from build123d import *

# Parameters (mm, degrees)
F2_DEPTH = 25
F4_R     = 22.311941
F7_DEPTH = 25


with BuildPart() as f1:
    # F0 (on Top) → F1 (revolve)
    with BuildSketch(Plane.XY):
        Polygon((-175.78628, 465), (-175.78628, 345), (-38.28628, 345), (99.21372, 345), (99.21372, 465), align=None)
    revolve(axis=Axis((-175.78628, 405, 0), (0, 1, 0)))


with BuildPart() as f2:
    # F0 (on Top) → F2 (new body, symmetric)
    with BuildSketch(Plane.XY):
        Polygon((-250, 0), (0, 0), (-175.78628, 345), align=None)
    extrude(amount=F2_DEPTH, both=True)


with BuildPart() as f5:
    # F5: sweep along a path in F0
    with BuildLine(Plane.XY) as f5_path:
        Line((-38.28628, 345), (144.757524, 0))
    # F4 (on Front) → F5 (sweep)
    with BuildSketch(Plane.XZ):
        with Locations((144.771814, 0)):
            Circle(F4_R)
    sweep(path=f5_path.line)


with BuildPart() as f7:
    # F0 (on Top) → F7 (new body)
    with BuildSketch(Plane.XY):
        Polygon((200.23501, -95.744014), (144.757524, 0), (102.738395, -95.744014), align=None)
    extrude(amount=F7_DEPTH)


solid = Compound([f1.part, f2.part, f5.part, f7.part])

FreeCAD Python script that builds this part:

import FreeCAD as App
import Part
import Sketcher
Q = App.Units.Quantity

doc = App.newDocument("Part")
body = doc.addObject("PartDesign::Body", "Body")

sketch1 = body.newObject("Sketcher::SketchObject", "Sketch")
sketch1.AttachmentSupport = (doc.getObject("XY_Plane"), [""])
sketch1.MapMode = "FlatFace"
sketch1.addGeometry(Part.LineSegment(App.Vector(-175.78628, 465, 0), App.Vector(-175.78628, 345, 0)), False)
sketch1.addGeometry(Part.LineSegment(App.Vector(-175.78628, 345, 0), App.Vector(99.21372, 345, 0)), False)
sketch1.addGeometry(Part.LineSegment(App.Vector(99.21372, 345, 0), App.Vector(99.21372, 465, 0)), False)
sketch1.addGeometry(Part.LineSegment(App.Vector(99.21372, 465, 0), App.Vector(-175.78628, 465, 0)), False)
sketch1.addGeometry(Part.LineSegment(App.Vector(-175.78628, 345, 0), App.Vector(-175.78628, 465, 0)), True)
sketch1.addConstraint(Sketcher.Constraint("Coincident", 0, 2, 1, 1))
sketch1.addConstraint(Sketcher.Constraint("Coincident", 1, 2, 2, 1))
sketch1.addConstraint(Sketcher.Constraint("Coincident", 2, 2, 3, 1))
sketch1.addConstraint(Sketcher.Constraint("Coincident", 3, 2, 0, 1))
sketch1.addConstraint(Sketcher.Constraint("Vertical", 0))
sketch1.addConstraint(Sketcher.Constraint("Horizontal", 1))
sketch1.addConstraint(Sketcher.Constraint("Vertical", 2))
sketch1.addConstraint(Sketcher.Constraint("Horizontal", 3))
sketch1.addConstraint(Sketcher.Constraint("Vertical", 4))
sketch1.addConstraint(Sketcher.Constraint("Coincident", 4, 1, 0, 2))
sketch1.addConstraint(Sketcher.Constraint("Horizontal", 2, 2, 4, 2))
sketch1.addConstraint(Sketcher.Constraint("DistanceX", 1, 1, 1, 2, Q("275 mm")))
sketch1.addConstraint(Sketcher.Constraint("DistanceY", 0, 2, 0, 1, Q("120 mm")))
sketch1.addConstraint(Sketcher.Constraint("DistanceY", -1, 1, 0, 2, Q("345 mm")))
sketch1.addConstraint(Sketcher.Constraint("DistanceX", 0, 2, -1, 1, Q("175.78628 mm")))
revolution = body.newObject("PartDesign::Revolution", "Revolution")
revolution.Profile = sketch1
revolution.ReferenceAxis = (sketch1, ["Axis0"])
revolution.Angle = 360
body2 = doc.addObject("PartDesign::Body", "Body001")

sketch2 = body2.newObject("Sketcher::SketchObject", "Sketch001")
sketch2.AttachmentSupport = (doc.getObject("XY_Plane001"), [""])
sketch2.MapMode = "FlatFace"
sketch2.addGeometry(Part.LineSegment(App.Vector(-250, 0, 0), App.Vector(0, 0, 0)), False)
sketch2.addGeometry(Part.LineSegment(App.Vector(0, 0, 0), App.Vector(-175.78628, 345, 0)), False)
sketch2.addGeometry(Part.LineSegment(App.Vector(-175.78628, 345, 0), App.Vector(-250, 0, 0)), False)
sketch2.addConstraint(Sketcher.Constraint("Coincident", 0, 2, 1, 1))
sketch2.addConstraint(Sketcher.Constraint("Coincident", 1, 2, 2, 1))
sketch2.addConstraint(Sketcher.Constraint("Coincident", 2, 2, 0, 1))
sketch2.addConstraint(Sketcher.Constraint("Horizontal", 0))
sketch2.addConstraint(Sketcher.Constraint("Coincident", 0, 2, -1, 1))
sketch2.addConstraint(Sketcher.Constraint("DistanceX", 0, 1, 0, 2, Q("250 mm")))
sketch2.addConstraint(Sketcher.Constraint("Angle", 1, Q("117 deg")))
sketch2.addConstraint(Sketcher.Constraint("DistanceY", -1, 1, 1, 2, Q("345 mm")))
pad1 = body2.newObject("PartDesign::Pad", "Pad")
pad1.Profile = sketch2
pad1.Length = 50
pad1.Midplane = True
body3 = doc.addObject("PartDesign::Body", "Body002")

sketch3 = body3.newObject("Sketcher::SketchObject", "Sketch002")
sketch3.AttachmentSupport = (doc.getObject("XZ_Plane002"), [""])
sketch3.MapMode = "FlatFace"
sketch3.addGeometry(Part.Circle(App.Vector(144.771814, 0, 0), App.Vector(0, 0, 1), 22.311941), False)
sketch3.addConstraint(Sketcher.Constraint("PointOnObject", 0, 3, -1))
sketch3.addConstraint(Sketcher.Constraint("Diameter", 0, Q("44.623882 mm")))
sketch3.addConstraint(Sketcher.Constraint("DistanceX", -1, 1, 0, 3, Q("144.771814 mm")))

sketch4 = body3.newObject("Sketcher::SketchObject", "Sketch003")
sketch4.Placement = App.Placement(App.Vector(112.959814, 59.932157, 0), App.Rotation(App.Vector(0.468681001, -0.883367488, 0), App.Vector(0, 0, 1), App.Vector(-0.883367488, -0.468681001, 0), "ZXY"))
sketch4.addGeometry(Part.LineSegment(App.Vector(-322.705835, 0, 0), App.Vector(67.845101, 0, 0)), False)
sketch4.addConstraint(Sketcher.Constraint("Horizontal", 0))
sketch4.addConstraint(Sketcher.Constraint("PointOnObject", 0, 1, -1))
sketch4.addConstraint(Sketcher.Constraint("DistanceX", -1, 1, 0, 2, Q("67.845101 mm")))
sketch4.addConstraint(Sketcher.Constraint("DistanceX", 0, 1, 0, 2, Q("390.550937 mm")))
doc.recompute()

additivepipe = body3.newObject("PartDesign::AdditivePipe", "AdditivePipe")
additivepipe.Profile = sketch3
additivepipe.Spine = (sketch4, ["Edge1"])
body4 = doc.addObject("PartDesign::Body", "Body003")

sketch5 = body4.newObject("Sketcher::SketchObject", "Sketch004")
sketch5.AttachmentSupport = (doc.getObject("XY_Plane003"), [""])
sketch5.MapMode = "FlatFace"
sketch5.addGeometry(Part.LineSegment(App.Vector(200.23501, -95.744014, 0), App.Vector(144.757524, 0, 0)), False)
sketch5.addGeometry(Part.LineSegment(App.Vector(144.757524, 0, 0), App.Vector(102.738395, -95.744014, 0)), False)
sketch5.addGeometry(Part.LineSegment(App.Vector(102.738395, -95.744014, 0), App.Vector(200.23501, -95.744014, 0)), False)
sketch5.addConstraint(Sketcher.Constraint("Coincident", 0, 2, 1, 1))
sketch5.addConstraint(Sketcher.Constraint("Coincident", 1, 2, 2, 1))
sketch5.addConstraint(Sketcher.Constraint("Coincident", 2, 2, 0, 1))
sketch5.addConstraint(Sketcher.Constraint("Horizontal", 2))
sketch5.addConstraint(Sketcher.Constraint("PointOnObject", 0, 2, -1))
sketch5.addConstraint(Sketcher.Constraint("Distance", 1, Q("104.558708 mm")))
sketch5.addConstraint(Sketcher.Constraint("DistanceX", 2, 1, 2, 2, Q("97.496615 mm")))
sketch5.addConstraint(Sketcher.Constraint("DistanceX", -1, 1, 2, 2, Q("200.23501 mm")))
sketch5.addConstraint(Sketcher.Constraint("DistanceX", 1, 2, 0, 2, Q("42.019129 mm")))
pad2 = body4.newObject("PartDesign::Pad", "Pad001")
pad2.Profile = sketch5
pad2.Length = 25

doc.recompute()
